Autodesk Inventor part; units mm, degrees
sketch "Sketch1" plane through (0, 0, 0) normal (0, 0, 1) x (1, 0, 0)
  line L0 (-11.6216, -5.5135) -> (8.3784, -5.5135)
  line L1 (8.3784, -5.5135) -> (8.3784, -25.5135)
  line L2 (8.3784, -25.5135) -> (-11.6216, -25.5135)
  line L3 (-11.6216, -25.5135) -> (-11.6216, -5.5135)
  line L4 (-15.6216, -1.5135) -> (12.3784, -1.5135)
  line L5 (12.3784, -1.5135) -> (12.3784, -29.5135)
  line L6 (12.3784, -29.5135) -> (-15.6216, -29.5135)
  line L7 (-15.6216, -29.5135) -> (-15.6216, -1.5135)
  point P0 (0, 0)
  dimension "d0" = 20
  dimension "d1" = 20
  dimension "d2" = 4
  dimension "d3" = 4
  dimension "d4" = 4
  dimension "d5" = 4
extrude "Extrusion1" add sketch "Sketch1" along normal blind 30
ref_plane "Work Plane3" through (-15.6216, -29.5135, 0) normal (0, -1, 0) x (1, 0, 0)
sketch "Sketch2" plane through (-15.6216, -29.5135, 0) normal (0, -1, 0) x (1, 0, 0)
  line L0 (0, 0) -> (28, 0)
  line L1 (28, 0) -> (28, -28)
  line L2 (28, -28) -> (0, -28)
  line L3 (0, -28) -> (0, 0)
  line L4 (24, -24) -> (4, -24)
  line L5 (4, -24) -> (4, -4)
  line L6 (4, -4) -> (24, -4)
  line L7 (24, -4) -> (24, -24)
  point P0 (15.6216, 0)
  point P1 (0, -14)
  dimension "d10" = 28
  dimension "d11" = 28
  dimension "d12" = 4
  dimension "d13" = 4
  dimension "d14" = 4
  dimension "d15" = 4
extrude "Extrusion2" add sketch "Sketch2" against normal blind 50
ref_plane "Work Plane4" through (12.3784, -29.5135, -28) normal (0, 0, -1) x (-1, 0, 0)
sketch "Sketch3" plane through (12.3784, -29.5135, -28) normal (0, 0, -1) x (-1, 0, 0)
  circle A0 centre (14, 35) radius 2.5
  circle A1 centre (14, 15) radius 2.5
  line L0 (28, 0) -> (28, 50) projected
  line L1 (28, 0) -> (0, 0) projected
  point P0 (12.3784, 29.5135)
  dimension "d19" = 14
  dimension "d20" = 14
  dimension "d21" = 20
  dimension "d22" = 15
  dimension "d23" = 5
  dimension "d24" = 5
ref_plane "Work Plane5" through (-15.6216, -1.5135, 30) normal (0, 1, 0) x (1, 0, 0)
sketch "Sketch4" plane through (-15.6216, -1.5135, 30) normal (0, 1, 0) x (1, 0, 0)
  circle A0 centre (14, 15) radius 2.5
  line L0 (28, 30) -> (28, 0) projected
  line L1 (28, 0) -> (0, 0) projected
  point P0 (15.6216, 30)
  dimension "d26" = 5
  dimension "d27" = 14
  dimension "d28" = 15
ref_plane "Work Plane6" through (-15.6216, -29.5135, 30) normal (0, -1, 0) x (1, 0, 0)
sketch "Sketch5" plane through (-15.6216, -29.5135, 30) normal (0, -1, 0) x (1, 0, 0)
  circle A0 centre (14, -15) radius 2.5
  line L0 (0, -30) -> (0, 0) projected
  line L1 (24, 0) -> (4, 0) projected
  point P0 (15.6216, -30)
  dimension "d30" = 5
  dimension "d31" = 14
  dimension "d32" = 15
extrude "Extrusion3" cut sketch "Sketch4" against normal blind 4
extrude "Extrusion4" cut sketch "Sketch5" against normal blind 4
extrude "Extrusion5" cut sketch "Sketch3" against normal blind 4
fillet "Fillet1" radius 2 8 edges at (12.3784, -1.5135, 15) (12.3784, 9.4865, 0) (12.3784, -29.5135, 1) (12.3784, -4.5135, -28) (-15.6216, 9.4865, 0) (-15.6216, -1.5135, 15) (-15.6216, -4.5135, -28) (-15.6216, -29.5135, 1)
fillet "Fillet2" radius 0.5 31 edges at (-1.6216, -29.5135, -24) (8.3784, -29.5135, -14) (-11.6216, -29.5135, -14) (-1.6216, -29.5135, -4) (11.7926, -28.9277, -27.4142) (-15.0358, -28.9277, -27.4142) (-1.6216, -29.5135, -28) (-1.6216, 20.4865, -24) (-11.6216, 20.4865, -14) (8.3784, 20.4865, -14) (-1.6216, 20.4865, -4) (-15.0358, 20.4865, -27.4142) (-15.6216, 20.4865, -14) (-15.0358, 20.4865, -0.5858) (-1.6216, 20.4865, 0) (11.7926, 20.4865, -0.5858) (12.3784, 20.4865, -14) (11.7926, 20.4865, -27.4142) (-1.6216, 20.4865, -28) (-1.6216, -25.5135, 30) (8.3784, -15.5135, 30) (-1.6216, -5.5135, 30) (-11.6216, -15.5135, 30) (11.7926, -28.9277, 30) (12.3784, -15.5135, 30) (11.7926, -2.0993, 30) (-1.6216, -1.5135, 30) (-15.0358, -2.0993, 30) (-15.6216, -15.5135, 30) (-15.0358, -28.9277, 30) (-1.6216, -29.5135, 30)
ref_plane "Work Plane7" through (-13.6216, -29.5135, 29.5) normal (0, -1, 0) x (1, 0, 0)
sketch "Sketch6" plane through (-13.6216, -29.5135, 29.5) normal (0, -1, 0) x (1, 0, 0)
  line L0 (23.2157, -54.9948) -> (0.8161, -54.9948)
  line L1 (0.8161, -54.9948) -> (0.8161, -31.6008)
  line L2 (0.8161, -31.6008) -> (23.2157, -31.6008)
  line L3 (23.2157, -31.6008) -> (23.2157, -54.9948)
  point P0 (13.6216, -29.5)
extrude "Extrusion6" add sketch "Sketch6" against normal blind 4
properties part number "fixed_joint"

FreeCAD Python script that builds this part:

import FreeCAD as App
import Part
import Sketcher
from FreeCAD import Vector
Q = App.Units.Quantity


def edges_at(feature, points):
    """Names of the edges that pass closest to the given points."""
    edges = feature.Shape.Edges
    near = lambda p: min(range(len(edges)), key=lambda i: edges[i].distToShape(Part.Vertex(*p))[0])
    return sorted({f"Edge{near(p) + 1}" for p in points})


def add_polygon(sketch, points):
    """Adds a closed chain of lines whose ends are joined by coincident constraints."""
    first, n = sketch.GeometryCount, len(points)
    for a, b in zip(points, points[1:] + points[:1]):
        sketch.addGeometry(Part.LineSegment(App.Vector(*a, 0), App.Vector(*b, 0)), False)
    for i in range(n):
        sketch.addConstraint(Sketcher.Constraint("Coincident", first + i, 2, first + (i + 1) % n, 1))

doc = App.newDocument("Part")
body = doc.addObject("PartDesign::Body", "Body")

sketch1 = doc.addObject("Sketcher::SketchObject", "Sketch")
body.addObject(sketch1)
sketch1.AttachmentSupport = (doc.XY_Plane, [""])
sketch1.MapMode = "FlatFace"
add_polygon(sketch1, [(12, -2), (-16, -2), (-16, -30), (12, -30)])
add_polygon(sketch1, [(-12, -26), (-12, -6), (8, -6), (8, -26)])
sketch1.addConstraint([
    Sketcher.Constraint("Horizontal", 0),
    Sketcher.Constraint("Vertical", 1),
    Sketcher.Constraint("Horizontal", 2),
    Sketcher.Constraint("Vertical", 3),
    Sketcher.Constraint("Vertical", 4),
    Sketcher.Constraint("Horizontal", 5),
    Sketcher.Constraint("Vertical", 6),
    Sketcher.Constraint("Horizontal", 7),
    Sketcher.Constraint("Equal", 2, 1),
    Sketcher.Constraint("Equal", 7, 4),
    Sketcher.Constraint("DistanceX", 5, 1, 5, 2, Q("20 mm")),
    Sketcher.Constraint("DistanceX", 0, 2, 4, 2, Q("4 mm")),
    Sketcher.Constraint("DistanceY", 4, 2, 0, 2, Q("4 mm")),
    Sketcher.Constraint("DistanceX", 5, 2, 3, 2, Q("4 mm")),
    Sketcher.Constraint("DistanceX", 0, 2, -1, 1, Q("15.6216 mm")),
    Sketcher.Constraint("DistanceY", 0, 2, -1, 1, Q("1.5135 mm")),
])
pad1 = doc.addObject("PartDesign::Pad", "Pad")
body.addObject(pad1)
pad1.Profile = sketch1
pad1.Length = 30

sketch2 = doc.addObject("Sketcher::SketchObject", "Sketch001")
body.addObject(sketch2)
sketch2.AttachmentSupport = (doc.XZ_Plane, [""])
sketch2.MapMode = "FlatFace"
sketch2.AttachmentOffset = App.Placement(Vector(0, 0, 29.5135), App.Rotation())
add_polygon(sketch2, [(12, 0), (-16, 0), (-16, -28), (12, -28)])
add_polygon(sketch2, [(8, -4), (8, -24), (-12, -24), (-12, -4)])
sketch2.addConstraint([
    Sketcher.Constraint("Horizontal", 0),
    Sketcher.Constraint("Vertical", 1),
    Sketcher.Constraint("Horizontal", 2),
    Sketcher.Constraint("Vertical", 3),
    Sketcher.Constraint("Vertical", 4),
    Sketcher.Constraint("Horizontal", 5),
    Sketcher.Constraint("Vertical", 6),
    Sketcher.Constraint("Horizontal", 7),
    Sketcher.Constraint("PointOnObject", 0, 2, -1),
    Sketcher.Constraint("Equal", 2, 1),
    Sketcher.Constraint("Equal", 7, 4),
    Sketcher.Constraint("DistanceX", 0, 2, 0, 1, Q("28 mm")),
    Sketcher.Constraint("DistanceY", 6, 2, -1, 1, Q("4 mm")),
    Sketcher.Constraint("DistanceX", 4, 2, 2, 2, Q("4 mm")),
    Sketcher.Constraint("DistanceY", 2, 2, 4, 2, Q("4 mm")),
    Sketcher.Constraint("DistanceX", 0, 2, -1, 1, Q("15.6216 mm")),
])
pad2 = doc.addObject("PartDesign::Pad", "Pad001")
body.addObject(pad2)
pad2.Profile = sketch2
pad2.Length = 50
pad2.Reversed = True

sketch3 = doc.addObject("Sketcher::SketchObject", "Sketch002")
body.addObject(sketch3)
sketch3.AttachmentSupport = (doc.XZ_Plane, [""])
sketch3.MapMode = "FlatFace"
sketch3.AttachmentOffset = App.Placement(Vector(0, 0, 1.5135), App.Rotation())
sketch3.addGeometry(Part.Circle(Vector(-1.6, 15, 0), Vector(0, 0, 1), 2.5), False)
sketch3.addConstraint([
    Sketcher.Constraint("Diameter", 0, Q("5 mm")),
    Sketcher.Constraint("DistanceY", -1, 1, 0, 3, Q("15 mm")),
    Sketcher.Constraint("DistanceX", 0, 3, -1, 1, Q("1.6216 mm")),
])
pocket1 = doc.addObject("PartDesign::Pocket", "Pocket")
body.addObject(pocket1)
pocket1.Profile = sketch3
pocket1.Length = 4
pocket1.Reversed = True

sketch4 = doc.addObject("Sketcher::SketchObject", "Sketch003")
body.addObject(sketch4)
sketch4.AttachmentSupport = (doc.XZ_Plane, [""])
sketch4.MapMode = "FlatFace"
sketch4.AttachmentOffset = App.Placement(Vector(0, 0, 29.5135), App.Rotation())
sketch4.addGeometry(Part.Circle(Vector(-1.6, 15, 0), Vector(0, 0, 1), 2.5), False)
sketch4.addConstraint([
    Sketcher.Constraint("Diameter", 0, Q("5 mm")),
    Sketcher.Constraint("DistanceY", -1, 1, 0, 3, Q("15 mm")),
    Sketcher.Constraint("DistanceX", 0, 3, -1, 1, Q("1.6216 mm")),
])
pocket2 = doc.addObject("PartDesign::Pocket", "Pocket001")
body.addObject(pocket2)
pocket2.Profile = sketch4
pocket2.Length = 4

sketch5 = doc.addObject("Sketcher::SketchObject", "Sketch004")
body.addObject(sketch5)
sketch5.AttachmentSupport = (doc.XY_Plane, [""])
sketch5.MapMode = "FlatFace"
sketch5.AttachmentOffset = App.Placement(Vector(0, 0, -28), App.Rotation())
sketch5.addGeometry([
    Part.Circle(Vector(-1.6, 5.5, 0), Vector(0, 0, 1), 2.5),
    Part.Circle(Vector(-1.6, -14.5, 0), Vector(0, 0, 1), 2.5),
], False)
sketch5.addConstraint([
    Sketcher.Constraint("Equal", 0, 1),
    Sketcher.Constraint("Vertical", 0, 3, 1, 3),
    Sketcher.Constraint("Diameter", 0, Q("5 mm")),
    Sketcher.Constraint("DistanceY", 1, 3, 0, 3, Q("20 mm")),
    Sketcher.Constraint("DistanceX", 0, 3, -1, 1, Q("1.6216 mm")),
    Sketcher.Constraint("DistanceY", -1, 1, 0, 3, Q("5.4865 mm")),
])
pocket3 = doc.addObject("PartDesign::Pocket", "Pocket002")
body.addObject(pocket3)
pocket3.Profile = sketch5
pocket3.Length = 4
pocket3.Reversed = True
doc.recompute()

fillet = doc.addObject("PartDesign::Fillet", "Fillet")
body.addObject(fillet)
fillet.Base = (pocket3, edges_at(pocket3, [
    (12.378, -1.514, 15),
    (12.378, 9.486, 0),
    (12.378, -29.514, 1),
    (12.378, -4.513, -28),
    (-15.622, 9.486, 0),
    (-15.622, -1.514, 15),
    (-15.622, -4.513, -28),
    (-15.622, -29.514, 1),
]))
fillet.Radius = 2
doc.recompute()

fillet2 = doc.addObject("PartDesign::Fillet", "Fillet001")
body.addObject(fillet2)
fillet2.Base = (fillet, edges_at(fillet, [
    (-1.622, -29.514, -24),
    (8.378, -29.514, -14),
    (-11.622, -29.514, -14),
    (-1.622, -29.514, -4),
    (11.793, -28.928, -27.414),
    (-15.036, -28.928, -27.414),
    (-1.622, -29.514, -28),
    (-1.622, 20.486, -24),
    (-11.622, 20.486, -14),
    (8.378, 20.486, -14),
    (-1.622, 20.486, -4),
    (-15.036, 20.486, -27.414),
    (-15.622, 20.486, -14),
    (-15.036, 20.486, -0.586),
    (-1.622, 20.486, 0),
    (11.793, 20.486, -0.586),
    (12.378, 20.486, -14),
    (11.793, 20.486, -27.414),
    (-1.622, 20.486, -28),
    (-1.622, -25.514, 30),
    (8.378, -15.514, 30),
    (-1.622, -5.513, 30),
    (-11.622, -15.514, 30),
    (11.793, -28.928, 30),
    (12.378, -15.514, 30),
    (11.793, -2.099, 30),
    (-1.622, -1.514, 30),
    (-15.036, -2.099, 30),
    (-15.622, -15.514, 30),
    (-15.036, -28.928, 30),
    (-1.622, -29.514, 30),
]))
fillet2.Radius = 0.5

sketch6 = doc.addObject("Sketcher::SketchObject", "Sketch005")
body.addObject(sketch6)
sketch6.AttachmentSupport = (doc.XZ_Plane, [""])
sketch6.MapMode = "FlatFace"
sketch6.AttachmentOffset = App.Placement(Vector(0, 0, 29.5135), App.Rotation())
add_polygon(sketch6, [(-13, -25), (10, -25), (10, -2), (-13, -2)])
sketch6.addConstraint([
    Sketcher.Constraint("Horizontal", 0),
    Sketcher.Constraint("Vertical", 1),
    Sketcher.Constraint("Horizontal", 2),
    Sketcher.Constraint("Vertical", 3),
    Sketcher.Constraint("DistanceY", 1, 1, 1, 2, Q("23.394 mm")),
    Sketcher.Constraint("DistanceX", 0, 1, 0, 2, Q("22.3996 mm")),
    Sketcher.Constraint("DistanceX", -1, 1, 0, 2, Q("9.594 mm")),
    Sketcher.Constraint("DistanceY", 0, 2, -1, 1, Q("25.4948 mm")),
])
pad3 = doc.addObject("PartDesign::Pad", "Pad002")
body.addObject(pad3)
pad3.Profile = sketch6
pad3.Length = 4
pad3.Reversed = True

doc.recompute()
